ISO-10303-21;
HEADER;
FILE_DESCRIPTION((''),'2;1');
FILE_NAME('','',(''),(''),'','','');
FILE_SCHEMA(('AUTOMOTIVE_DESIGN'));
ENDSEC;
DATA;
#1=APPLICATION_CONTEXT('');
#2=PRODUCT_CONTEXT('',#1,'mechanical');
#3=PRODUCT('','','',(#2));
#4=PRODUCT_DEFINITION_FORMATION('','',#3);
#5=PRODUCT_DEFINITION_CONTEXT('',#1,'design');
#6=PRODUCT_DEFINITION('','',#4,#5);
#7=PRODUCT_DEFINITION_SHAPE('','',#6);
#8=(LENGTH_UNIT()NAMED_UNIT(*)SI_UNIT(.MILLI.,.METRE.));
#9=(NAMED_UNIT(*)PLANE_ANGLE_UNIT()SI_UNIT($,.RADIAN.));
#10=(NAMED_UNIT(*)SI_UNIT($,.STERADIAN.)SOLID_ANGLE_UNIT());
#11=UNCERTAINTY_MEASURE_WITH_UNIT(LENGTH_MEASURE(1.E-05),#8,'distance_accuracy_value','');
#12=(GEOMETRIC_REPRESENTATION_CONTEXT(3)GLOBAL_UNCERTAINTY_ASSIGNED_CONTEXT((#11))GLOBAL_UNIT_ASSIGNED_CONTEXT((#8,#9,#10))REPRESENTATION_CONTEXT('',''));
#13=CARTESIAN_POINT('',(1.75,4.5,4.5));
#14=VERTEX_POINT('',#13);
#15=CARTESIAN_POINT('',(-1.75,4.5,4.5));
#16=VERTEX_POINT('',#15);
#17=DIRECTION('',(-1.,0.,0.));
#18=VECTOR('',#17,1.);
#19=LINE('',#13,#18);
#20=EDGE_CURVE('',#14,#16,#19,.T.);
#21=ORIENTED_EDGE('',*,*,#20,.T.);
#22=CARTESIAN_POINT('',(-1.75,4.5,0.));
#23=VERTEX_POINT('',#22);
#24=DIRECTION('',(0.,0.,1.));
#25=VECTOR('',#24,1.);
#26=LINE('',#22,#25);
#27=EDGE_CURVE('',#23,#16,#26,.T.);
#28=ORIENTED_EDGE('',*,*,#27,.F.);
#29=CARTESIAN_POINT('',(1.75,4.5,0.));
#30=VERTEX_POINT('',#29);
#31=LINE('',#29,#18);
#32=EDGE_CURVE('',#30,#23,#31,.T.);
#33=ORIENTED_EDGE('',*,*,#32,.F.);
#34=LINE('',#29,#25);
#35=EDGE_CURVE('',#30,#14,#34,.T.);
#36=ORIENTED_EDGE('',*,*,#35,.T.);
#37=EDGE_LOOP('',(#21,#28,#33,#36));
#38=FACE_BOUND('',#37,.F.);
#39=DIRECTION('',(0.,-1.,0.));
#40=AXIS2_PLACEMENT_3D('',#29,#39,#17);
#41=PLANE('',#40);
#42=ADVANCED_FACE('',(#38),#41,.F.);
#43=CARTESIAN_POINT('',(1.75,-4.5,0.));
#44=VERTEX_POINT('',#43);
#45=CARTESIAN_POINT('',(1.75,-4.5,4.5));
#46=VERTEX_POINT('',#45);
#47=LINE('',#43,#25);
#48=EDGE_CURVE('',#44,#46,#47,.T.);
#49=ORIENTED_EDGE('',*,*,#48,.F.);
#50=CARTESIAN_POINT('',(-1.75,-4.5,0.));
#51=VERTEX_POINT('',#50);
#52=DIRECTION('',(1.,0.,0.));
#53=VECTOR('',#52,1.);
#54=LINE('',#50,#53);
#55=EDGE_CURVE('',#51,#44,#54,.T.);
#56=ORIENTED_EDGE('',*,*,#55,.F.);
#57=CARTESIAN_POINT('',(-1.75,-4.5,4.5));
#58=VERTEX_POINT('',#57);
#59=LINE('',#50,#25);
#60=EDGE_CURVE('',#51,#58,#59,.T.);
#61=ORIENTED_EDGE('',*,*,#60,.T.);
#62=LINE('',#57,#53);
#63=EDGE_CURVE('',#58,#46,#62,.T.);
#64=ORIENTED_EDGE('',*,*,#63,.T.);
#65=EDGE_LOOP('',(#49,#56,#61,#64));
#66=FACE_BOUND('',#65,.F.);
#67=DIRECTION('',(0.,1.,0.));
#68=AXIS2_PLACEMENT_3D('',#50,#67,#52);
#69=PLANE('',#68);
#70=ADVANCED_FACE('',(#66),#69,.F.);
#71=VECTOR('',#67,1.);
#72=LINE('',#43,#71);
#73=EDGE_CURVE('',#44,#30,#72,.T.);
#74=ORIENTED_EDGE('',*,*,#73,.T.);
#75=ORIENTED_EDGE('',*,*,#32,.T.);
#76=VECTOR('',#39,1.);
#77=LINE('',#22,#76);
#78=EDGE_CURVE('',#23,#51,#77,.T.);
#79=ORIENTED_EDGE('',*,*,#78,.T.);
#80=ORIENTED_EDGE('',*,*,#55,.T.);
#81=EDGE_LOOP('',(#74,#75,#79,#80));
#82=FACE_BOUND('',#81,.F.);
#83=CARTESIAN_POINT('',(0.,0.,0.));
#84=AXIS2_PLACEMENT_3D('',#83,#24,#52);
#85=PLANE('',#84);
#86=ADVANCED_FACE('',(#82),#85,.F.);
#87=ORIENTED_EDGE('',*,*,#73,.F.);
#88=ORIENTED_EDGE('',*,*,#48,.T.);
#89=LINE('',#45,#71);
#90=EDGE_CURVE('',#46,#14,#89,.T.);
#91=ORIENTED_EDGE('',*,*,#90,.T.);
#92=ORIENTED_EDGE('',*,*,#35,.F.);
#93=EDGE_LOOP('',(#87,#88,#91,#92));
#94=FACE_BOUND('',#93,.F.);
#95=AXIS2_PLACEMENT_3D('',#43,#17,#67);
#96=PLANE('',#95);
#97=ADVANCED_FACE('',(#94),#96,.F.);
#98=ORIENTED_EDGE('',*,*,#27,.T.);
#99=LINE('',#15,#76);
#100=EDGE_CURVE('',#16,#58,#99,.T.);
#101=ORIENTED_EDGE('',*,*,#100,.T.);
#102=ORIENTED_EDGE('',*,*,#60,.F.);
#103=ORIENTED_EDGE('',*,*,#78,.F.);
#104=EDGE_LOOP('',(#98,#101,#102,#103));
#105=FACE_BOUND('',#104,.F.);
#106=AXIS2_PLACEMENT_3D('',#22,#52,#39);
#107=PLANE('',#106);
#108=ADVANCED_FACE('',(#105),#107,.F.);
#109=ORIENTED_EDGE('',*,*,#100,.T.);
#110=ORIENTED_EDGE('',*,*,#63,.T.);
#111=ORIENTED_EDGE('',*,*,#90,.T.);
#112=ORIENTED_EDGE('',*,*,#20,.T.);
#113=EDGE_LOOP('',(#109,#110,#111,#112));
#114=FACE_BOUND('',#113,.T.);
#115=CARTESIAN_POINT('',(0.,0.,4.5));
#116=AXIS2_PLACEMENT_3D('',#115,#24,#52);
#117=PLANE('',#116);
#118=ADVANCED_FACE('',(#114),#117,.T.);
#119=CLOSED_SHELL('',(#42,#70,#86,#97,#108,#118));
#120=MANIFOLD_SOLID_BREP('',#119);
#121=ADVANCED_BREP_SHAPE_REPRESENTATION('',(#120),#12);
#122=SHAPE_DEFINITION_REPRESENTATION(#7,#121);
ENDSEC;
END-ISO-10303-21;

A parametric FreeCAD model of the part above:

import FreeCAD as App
import Part
import Sketcher
from FreeCAD import Vector

doc = App.newDocument("Part")
params = doc.addObject("Spreadsheet::Sheet", "Params")
for row, (alias, value) in enumerate([
    ("sketch1_height", "9 mm"),
    ("sketch1_width", "3.5 mm"),
    ("pad1_length", "4.5 mm"),
], start=1):
    params.set(f"A{row}", alias)
    params.set(f"B{row}", "=" + value)
    params.setAlias(f"B{row}", alias)

body = doc.addObject("PartDesign::Body", "Body")

# Sketch on XY plane
sketch1 = body.newObject("Sketcher::SketchObject", "Sketch")
sketch1.AttachmentSupport = (doc.getObject("XY_Plane"), [""])
sketch1.MapMode = "FlatFace"
sketch1.addGeometry(Part.LineSegment(Vector(-1.8, 4.5, 0), Vector(-1.8, -4.5, 0)), False)
sketch1.addGeometry(Part.LineSegment(Vector(-1.8, -4.5, 0), Vector(1.8, -4.5, 0)), False)
sketch1.addGeometry(Part.LineSegment(Vector(1.8, -4.5, 0), Vector(1.8, 4.5, 0)), False)
sketch1.addGeometry(Part.LineSegment(Vector(1.8, 4.5, 0), Vector(-1.8, 4.5, 0)), False)
sketch1.addConstraint(Sketcher.Constraint("Coincident", 0, 2, 1, 1))
sketch1.addConstraint(Sketcher.Constraint("Coincident", 1, 2, 2, 1))
sketch1.addConstraint(Sketcher.Constraint("Coincident", 2, 2, 3, 1))
sketch1.addConstraint(Sketcher.Constraint("Coincident", 3, 2, 0, 1))
sketch1.addConstraint(Sketcher.Constraint("Vertical", 0))
sketch1.addConstraint(Sketcher.Constraint("Horizontal", 1))
sketch1.addConstraint(Sketcher.Constraint("Vertical", 2))
sketch1.addConstraint(Sketcher.Constraint("Horizontal", 3))
sketch1.addConstraint(Sketcher.Constraint("Symmetric", 0, 2, 2, 2, -1, 1))
sketch1.addConstraint(Sketcher.Constraint("DistanceY", 0, 2, 0, 1, 9.0))
sketch1.addConstraint(Sketcher.Constraint("DistanceX", 1, 1, 1, 2, 3.5))
sketch1.setExpression("Constraints[9]", "Params.sketch1_height")
sketch1.setExpression("Constraints[10]", "Params.sketch1_width")
pad1 = body.newObject("PartDesign::Pad", "Pad")
pad1.Profile = sketch1
pad1.setExpression("Length", "Params.pad1_length")

doc.recompute()
